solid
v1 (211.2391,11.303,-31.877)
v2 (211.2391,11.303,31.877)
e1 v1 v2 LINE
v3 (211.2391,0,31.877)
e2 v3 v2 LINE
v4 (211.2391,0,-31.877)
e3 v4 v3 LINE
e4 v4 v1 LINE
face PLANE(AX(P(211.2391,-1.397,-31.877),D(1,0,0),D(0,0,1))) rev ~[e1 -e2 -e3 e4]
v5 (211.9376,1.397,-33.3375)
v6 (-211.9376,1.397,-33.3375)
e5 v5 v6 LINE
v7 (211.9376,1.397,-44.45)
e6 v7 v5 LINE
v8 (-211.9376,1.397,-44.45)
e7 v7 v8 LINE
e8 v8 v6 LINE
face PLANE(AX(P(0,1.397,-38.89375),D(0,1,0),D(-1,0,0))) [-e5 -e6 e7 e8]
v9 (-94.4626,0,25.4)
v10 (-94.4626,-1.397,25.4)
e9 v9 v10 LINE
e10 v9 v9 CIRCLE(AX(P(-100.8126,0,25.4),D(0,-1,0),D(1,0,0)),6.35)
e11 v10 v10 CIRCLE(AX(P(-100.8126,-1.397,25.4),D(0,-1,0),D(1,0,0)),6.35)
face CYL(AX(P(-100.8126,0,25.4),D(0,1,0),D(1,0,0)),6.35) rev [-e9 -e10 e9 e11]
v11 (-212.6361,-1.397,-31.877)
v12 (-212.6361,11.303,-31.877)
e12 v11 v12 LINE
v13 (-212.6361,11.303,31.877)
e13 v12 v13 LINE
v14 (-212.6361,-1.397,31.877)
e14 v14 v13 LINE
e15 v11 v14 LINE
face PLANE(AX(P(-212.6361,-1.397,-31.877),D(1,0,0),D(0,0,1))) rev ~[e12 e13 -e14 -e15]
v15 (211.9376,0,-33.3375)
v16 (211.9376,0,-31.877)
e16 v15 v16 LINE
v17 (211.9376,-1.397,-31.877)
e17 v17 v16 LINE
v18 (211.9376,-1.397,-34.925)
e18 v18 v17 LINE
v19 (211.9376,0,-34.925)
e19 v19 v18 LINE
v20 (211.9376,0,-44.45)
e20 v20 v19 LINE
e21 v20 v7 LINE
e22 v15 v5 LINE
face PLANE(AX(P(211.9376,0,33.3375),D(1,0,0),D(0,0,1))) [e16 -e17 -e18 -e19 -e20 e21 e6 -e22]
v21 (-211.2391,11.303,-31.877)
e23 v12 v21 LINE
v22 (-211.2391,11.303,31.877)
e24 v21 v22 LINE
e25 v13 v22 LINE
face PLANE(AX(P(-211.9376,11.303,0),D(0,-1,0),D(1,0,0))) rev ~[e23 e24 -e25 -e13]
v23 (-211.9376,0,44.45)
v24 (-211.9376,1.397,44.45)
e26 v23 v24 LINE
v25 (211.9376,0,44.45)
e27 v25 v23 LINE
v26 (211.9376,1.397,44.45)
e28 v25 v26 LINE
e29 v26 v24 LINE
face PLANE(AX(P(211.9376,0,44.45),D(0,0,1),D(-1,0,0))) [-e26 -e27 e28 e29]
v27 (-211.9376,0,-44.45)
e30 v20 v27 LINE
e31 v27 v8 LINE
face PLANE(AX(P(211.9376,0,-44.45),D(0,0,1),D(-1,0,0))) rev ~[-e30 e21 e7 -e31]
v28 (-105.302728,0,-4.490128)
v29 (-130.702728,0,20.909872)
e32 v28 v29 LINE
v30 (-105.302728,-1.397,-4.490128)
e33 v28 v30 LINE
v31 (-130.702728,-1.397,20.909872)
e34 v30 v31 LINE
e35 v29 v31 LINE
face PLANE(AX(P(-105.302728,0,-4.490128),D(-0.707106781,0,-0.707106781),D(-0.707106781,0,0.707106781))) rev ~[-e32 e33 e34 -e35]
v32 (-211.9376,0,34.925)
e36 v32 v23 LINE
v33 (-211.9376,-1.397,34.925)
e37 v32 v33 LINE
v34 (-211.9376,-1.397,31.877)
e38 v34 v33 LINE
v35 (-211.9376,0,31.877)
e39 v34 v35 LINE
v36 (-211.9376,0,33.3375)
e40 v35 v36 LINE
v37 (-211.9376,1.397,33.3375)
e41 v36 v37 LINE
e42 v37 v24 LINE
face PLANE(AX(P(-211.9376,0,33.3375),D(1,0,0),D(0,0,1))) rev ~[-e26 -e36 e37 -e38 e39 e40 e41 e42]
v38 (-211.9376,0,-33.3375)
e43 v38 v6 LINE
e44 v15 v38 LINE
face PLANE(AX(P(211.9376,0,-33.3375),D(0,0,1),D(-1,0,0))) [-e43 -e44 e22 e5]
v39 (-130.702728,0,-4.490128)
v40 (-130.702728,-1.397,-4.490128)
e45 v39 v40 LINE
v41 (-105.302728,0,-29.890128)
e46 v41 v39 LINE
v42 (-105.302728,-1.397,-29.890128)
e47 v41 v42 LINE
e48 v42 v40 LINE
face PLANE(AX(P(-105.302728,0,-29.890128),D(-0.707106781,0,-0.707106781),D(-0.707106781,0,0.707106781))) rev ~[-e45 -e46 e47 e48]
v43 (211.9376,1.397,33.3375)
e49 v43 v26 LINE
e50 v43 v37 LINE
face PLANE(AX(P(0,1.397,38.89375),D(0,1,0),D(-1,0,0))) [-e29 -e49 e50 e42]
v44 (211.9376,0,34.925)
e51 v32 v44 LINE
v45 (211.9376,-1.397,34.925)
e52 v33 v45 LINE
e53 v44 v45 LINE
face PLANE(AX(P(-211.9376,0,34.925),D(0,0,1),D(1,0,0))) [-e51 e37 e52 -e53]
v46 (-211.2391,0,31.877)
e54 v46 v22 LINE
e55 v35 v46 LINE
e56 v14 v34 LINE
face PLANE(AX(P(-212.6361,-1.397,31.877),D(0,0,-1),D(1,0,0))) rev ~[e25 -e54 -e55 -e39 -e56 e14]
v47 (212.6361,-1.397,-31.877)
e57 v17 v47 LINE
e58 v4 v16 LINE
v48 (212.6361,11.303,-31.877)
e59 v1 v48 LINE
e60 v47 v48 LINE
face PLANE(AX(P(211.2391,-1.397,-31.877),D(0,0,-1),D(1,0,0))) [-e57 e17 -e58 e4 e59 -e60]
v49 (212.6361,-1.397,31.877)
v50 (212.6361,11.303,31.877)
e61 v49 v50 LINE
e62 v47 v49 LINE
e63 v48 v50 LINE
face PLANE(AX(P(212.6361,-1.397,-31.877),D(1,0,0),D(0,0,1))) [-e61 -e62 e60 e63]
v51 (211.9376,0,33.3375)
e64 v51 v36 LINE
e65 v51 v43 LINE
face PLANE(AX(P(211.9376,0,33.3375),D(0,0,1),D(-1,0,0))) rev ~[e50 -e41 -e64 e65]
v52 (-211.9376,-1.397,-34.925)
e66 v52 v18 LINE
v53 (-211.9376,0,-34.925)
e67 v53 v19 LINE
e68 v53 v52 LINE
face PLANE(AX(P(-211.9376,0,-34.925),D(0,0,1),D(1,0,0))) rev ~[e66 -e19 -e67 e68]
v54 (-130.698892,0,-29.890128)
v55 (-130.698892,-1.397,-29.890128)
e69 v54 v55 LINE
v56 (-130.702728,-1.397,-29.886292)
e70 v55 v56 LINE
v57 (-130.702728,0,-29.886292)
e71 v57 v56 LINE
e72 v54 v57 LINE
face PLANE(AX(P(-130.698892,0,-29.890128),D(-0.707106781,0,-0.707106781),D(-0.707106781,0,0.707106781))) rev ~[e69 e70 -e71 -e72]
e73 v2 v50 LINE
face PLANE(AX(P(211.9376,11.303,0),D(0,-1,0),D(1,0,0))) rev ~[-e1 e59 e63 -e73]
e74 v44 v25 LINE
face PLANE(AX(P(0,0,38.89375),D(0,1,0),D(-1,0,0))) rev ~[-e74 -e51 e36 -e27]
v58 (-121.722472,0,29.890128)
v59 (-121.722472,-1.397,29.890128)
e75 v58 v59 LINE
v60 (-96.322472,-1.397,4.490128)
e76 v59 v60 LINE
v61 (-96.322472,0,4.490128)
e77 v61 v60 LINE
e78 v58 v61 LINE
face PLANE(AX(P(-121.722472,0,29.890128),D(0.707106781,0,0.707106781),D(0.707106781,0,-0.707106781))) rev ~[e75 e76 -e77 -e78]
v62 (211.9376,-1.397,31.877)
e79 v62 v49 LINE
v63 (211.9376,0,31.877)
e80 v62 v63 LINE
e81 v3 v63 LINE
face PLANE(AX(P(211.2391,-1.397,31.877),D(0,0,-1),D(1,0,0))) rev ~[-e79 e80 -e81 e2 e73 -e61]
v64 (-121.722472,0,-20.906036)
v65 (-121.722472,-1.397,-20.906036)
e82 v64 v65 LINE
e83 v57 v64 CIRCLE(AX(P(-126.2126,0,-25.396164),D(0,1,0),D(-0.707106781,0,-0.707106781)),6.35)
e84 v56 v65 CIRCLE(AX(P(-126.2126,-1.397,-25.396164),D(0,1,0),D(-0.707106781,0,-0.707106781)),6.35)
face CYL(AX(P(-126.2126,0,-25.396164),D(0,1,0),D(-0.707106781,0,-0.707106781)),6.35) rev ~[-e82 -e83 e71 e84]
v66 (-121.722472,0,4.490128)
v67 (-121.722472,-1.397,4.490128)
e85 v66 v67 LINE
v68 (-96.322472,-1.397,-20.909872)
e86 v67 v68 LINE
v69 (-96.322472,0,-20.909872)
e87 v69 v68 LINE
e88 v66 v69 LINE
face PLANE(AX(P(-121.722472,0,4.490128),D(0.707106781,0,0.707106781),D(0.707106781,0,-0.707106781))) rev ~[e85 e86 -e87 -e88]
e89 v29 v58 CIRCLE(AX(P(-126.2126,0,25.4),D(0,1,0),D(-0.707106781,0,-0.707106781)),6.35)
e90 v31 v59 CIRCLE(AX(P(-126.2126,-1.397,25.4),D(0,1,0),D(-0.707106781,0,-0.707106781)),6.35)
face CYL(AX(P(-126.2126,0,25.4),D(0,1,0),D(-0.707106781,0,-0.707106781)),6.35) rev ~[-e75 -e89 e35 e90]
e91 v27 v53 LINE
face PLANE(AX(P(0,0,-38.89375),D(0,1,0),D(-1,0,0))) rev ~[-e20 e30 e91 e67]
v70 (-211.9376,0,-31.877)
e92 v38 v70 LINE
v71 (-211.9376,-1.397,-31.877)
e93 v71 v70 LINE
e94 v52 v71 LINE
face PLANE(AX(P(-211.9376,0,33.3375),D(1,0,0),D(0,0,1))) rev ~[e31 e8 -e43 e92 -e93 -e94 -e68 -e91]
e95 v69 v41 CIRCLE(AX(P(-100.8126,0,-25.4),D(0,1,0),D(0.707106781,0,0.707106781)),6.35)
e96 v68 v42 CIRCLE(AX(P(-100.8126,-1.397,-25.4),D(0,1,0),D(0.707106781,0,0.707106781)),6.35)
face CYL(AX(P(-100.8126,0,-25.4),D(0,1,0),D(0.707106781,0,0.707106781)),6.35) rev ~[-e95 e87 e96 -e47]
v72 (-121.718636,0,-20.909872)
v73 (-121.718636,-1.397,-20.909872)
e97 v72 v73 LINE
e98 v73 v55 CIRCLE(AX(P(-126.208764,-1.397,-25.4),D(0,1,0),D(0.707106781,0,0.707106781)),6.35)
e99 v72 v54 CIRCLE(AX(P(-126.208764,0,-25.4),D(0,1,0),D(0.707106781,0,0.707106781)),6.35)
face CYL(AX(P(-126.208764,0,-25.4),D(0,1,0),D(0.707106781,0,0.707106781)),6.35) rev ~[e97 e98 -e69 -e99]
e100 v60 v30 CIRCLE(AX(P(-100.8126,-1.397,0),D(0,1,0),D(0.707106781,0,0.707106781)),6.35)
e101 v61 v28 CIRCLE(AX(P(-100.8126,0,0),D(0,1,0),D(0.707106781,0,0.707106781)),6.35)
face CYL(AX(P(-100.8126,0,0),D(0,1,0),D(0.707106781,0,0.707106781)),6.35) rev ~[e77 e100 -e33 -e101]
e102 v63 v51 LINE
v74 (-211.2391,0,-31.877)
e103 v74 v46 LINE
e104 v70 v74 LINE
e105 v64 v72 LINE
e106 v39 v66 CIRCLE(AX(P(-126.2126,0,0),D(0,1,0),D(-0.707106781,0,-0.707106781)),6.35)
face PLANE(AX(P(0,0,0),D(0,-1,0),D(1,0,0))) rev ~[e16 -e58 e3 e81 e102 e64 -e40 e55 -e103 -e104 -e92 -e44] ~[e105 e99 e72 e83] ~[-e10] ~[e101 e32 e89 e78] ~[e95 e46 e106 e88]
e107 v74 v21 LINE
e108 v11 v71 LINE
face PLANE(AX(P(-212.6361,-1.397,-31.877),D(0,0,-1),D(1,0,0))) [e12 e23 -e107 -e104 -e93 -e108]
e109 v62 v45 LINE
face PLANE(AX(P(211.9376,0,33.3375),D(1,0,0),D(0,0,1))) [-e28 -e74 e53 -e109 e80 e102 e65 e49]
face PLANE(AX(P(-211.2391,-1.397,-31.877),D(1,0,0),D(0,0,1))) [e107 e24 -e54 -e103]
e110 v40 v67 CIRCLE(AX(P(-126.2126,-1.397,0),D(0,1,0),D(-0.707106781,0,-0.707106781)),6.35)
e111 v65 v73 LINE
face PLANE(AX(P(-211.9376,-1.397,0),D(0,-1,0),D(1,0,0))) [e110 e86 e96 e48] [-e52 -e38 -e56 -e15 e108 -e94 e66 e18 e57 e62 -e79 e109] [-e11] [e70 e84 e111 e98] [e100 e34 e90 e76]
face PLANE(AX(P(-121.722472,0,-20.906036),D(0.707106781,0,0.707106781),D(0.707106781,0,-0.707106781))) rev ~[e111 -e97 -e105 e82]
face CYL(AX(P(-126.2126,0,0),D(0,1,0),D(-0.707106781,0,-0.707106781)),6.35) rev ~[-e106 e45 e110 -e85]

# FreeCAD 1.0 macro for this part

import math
import FreeCAD as App
import Part
import Sketcher
from FreeCAD import Vector
Q = App.Units.Quantity

doc = App.newDocument("Part")
body = doc.addObject("PartDesign::Body", "Body")

sketch1 = body.newObject("Sketcher::SketchObject", "Sketch")
sketch1.AttachmentSupport = (doc.getObject("XZ_Plane"), [""])
sketch1.MapMode = "FlatFace"
sketch1.addGeometry(Part.LineSegment(Vector(-211.938, 34.925, 0), Vector(-211.938, -34.925, 0)), False)
sketch1.addGeometry(Part.LineSegment(Vector(-211.938, -34.925, 0), Vector(211.938, -34.925, 0)), False)
sketch1.addGeometry(Part.LineSegment(Vector(211.938, -34.925, 0), Vector(211.938, 34.925, 0)), False)
sketch1.addGeometry(Part.LineSegment(Vector(211.938, 34.925, 0), Vector(-211.938, 34.925, 0)), False)
sketch1.addGeometry(Part.LineSegment(Vector(-130.699, -29.89, 0), Vector(-130.703, -29.886, 0)), False)
sketch1.addGeometry(Part.ArcOfCircle(Part.Circle(Vector(-126.213, -25.396, 0), Vector(0, 0, 1), 6.35), math.radians(45), math.radians(225)), False)
sketch1.addGeometry(Part.LineSegment(Vector(-121.722, -20.906, 0), Vector(-121.719, -20.91, 0)), False)
sketch1.addGeometry(Part.ArcOfCircle(Part.Circle(Vector(-126.209, -25.4, 0), Vector(0, 0, 1), 6.35), math.radians(-135), math.radians(45)), False)
sketch1.addGeometry(Part.LineSegment(Vector(-105.303, -29.89, 0), Vector(-130.703, -4.49, 0)), False)
sketch1.addGeometry(Part.ArcOfCircle(Part.Circle(Vector(-126.213, 0, 0), Vector(0, 0, 1), 6.35), math.radians(45), math.radians(225)), False)
sketch1.addGeometry(Part.LineSegment(Vector(-121.722, 4.49, 0), Vector(-96.322, -20.91, 0)), False)
sketch1.addGeometry(Part.ArcOfCircle(Part.Circle(Vector(-100.813, -25.4, 0), Vector(0, 0, 1), 6.35), math.radians(-135), math.radians(45)), False)
sketch1.addGeometry(Part.LineSegment(Vector(-121.722, 29.89, 0), Vector(-96.322, 4.49, 0)), False)
sketch1.addGeometry(Part.ArcOfCircle(Part.Circle(Vector(-100.813, 0, 0), Vector(0, 0, 1), 6.35), math.radians(-135), math.radians(45)), False)
sketch1.addGeometry(Part.LineSegment(Vector(-105.303, -4.49, 0), Vector(-130.703, 20.91, 0)), False)
sketch1.addGeometry(Part.ArcOfCircle(Part.Circle(Vector(-126.213, 25.4, 0), Vector(0, 0, 1), 6.35), math.radians(45), math.radians(225)), False)
sketch1.addGeometry(Part.Circle(Vector(-100.813, 25.4, 0), Vector(0, 0, 1), 6.35), False)
sketch1.addConstraint(Sketcher.Constraint("Coincident", 0, 2, 1, 1))
sketch1.addConstraint(Sketcher.Constraint("Coincident", 1, 2, 2, 1))
sketch1.addConstraint(Sketcher.Constraint("Coincident", 2, 2, 3, 1))
sketch1.addConstraint(Sketcher.Constraint("Coincident", 3, 2, 0, 1))
sketch1.addConstraint(Sketcher.Constraint("Tangent", 4, 2, 5, 2))
sketch1.addConstraint(Sketcher.Constraint("Tangent", 5, 1, 6, 1))
sketch1.addConstraint(Sketcher.Constraint("Coincident", 6, 2, 7, 2))
sketch1.addConstraint(Sketcher.Constraint("Coincident", 7, 1, 4, 1))
sketch1.addConstraint(Sketcher.Constraint("Tangent", 8, 2, 9, 2))
sketch1.addConstraint(Sketcher.Constraint("Tangent", 9, 1, 10, 1))
sketch1.addConstraint(Sketcher.Constraint("Tangent", 10, 2, 11, 2))
sketch1.addConstraint(Sketcher.Constraint("Tangent", 11, 1, 8, 1))
sketch1.addConstraint(Sketcher.Constraint("Tangent", 12, 2, 13, 2))
sketch1.addConstraint(Sketcher.Constraint("Tangent", 13, 1, 14, 1))
sketch1.addConstraint(Sketcher.Constraint("Tangent", 14, 2, 15, 2))
sketch1.addConstraint(Sketcher.Constraint("Tangent", 15, 1, 12, 1))
sketch1.addConstraint(Sketcher.Constraint("Vertical", 0))
sketch1.addConstraint(Sketcher.Constraint("Horizontal", 1))
sketch1.addConstraint(Sketcher.Constraint("Vertical", 2))
sketch1.addConstraint(Sketcher.Constraint("Horizontal", 3))
sketch1.addConstraint(Sketcher.Constraint("Equal", 7, 9))
sketch1.addConstraint(Sketcher.Constraint("Equal", 9, 11))
sketch1.addConstraint(Sketcher.Constraint("Equal", 11, 13))
sketch1.addConstraint(Sketcher.Constraint("Equal", 13, 15))
sketch1.addConstraint(Sketcher.Constraint("Equal", 15, 16))
sketch1.addConstraint(Sketcher.Constraint("Symmetric", 0, 2, 2, 2, -1, 1))
sketch1.addConstraint(Sketcher.Constraint("Symmetric", 11, 3, 16, 3, -1))
sketch1.addConstraint(Sketcher.Constraint("PointOnObject", 9, 3, -1))
sketch1.addConstraint(Sketcher.Constraint("PointOnObject", 13, 3, -1))
sketch1.addConstraint(Sketcher.Constraint("Parallel", 10, 12))
sketch1.addConstraint(Sketcher.Constraint("Horizontal", 7, 3, 11, 3))
sketch1.addConstraint(Sketcher.Constraint("Horizontal", 15, 3, 16, 3))
sketch1.addConstraint(Sketcher.Constraint("Horizontal", 6, 2, 10, 2))
sketch1.addConstraint(Sketcher.Constraint("Horizontal", 7, 1, 11, 1))
sketch1.addConstraint(Sketcher.Constraint("Vertical", 5, 3, 9, 3))
sketch1.addConstraint(Sketcher.Constraint("Vertical", 11, 3, 13, 3))
sketch1.addConstraint(Sketcher.Constraint("Vertical", 4, 2, 8, 2))
sketch1.addConstraint(Sketcher.Constraint("Vertical", 5, 1, 9, 1))
sketch1.addConstraint(Sketcher.Constraint("Diameter", 16, Q("0.5 in")))
sketch1.addConstraint(Sketcher.Constraint("DistanceY", 7, 3, -1, 1, Q("1 in")))
sketch1.addConstraint(Sketcher.Constraint("Angle", 8, Q("135 deg")))
sketch1.addConstraint(Sketcher.Constraint("DistanceY", 0, 2, 0, 1, Q("2.75 in")))
sketch1.addConstraint(Sketcher.Constraint("DistanceX", 1, 1, 1, 2, Q("16.688 in")))
sketch1.addConstraint(Sketcher.Constraint("DistanceX", 5, 3, -1, 1, Q("4.969 in")))
sketch1.addConstraint(Sketcher.Constraint("DistanceX", 7, 1, -1, 1, Q("130.698892 mm")))
pad1 = body.newObject("PartDesign::Pad", "Pad")
pad1.Profile = sketch1
pad1.Length = Q("0.055 in")

sketch2 = body.newObject("Sketcher::SketchObject", "Sketch001")
sketch2.AttachmentSupport = (doc.getObject("XZ_Plane"), [""])
sketch2.MapMode = "FlatFace"
sketch2.addGeometry(Part.LineSegment(Vector(212, 44, 0), Vector(212, 33, 0)), False)
sketch2.addGeometry(Part.LineSegment(Vector(212, 33, 0), Vector(-212, 33, 0)), False)
sketch2.addGeometry(Part.LineSegment(Vector(-212, 33, 0), Vector(-212, 44, 0)), False)
sketch2.addGeometry(Part.LineSegment(Vector(-212, 44, 0), Vector(212, 44, 0)), False)
sketch2.addGeometry(Part.LineSegment(Vector(212, -33, 0), Vector(212, -44, 0)), False)
sketch2.addGeometry(Part.LineSegment(Vector(212, -44, 0), Vector(-212, -44, 0)), False)
sketch2.addGeometry(Part.LineSegment(Vector(-212, -44, 0), Vector(-212, -33, 0)), False)
sketch2.addGeometry(Part.LineSegment(Vector(-212, -33, 0), Vector(212, -33, 0)), False)
sketch2.addConstraint(Sketcher.Constraint("Coincident", 0, 2, 1, 1))
sketch2.addConstraint(Sketcher.Constraint("Coincident", 1, 2, 2, 1))
sketch2.addConstraint(Sketcher.Constraint("Coincident", 2, 2, 3, 1))
sketch2.addConstraint(Sketcher.Constraint("Coincident", 3, 2, 0, 1))
sketch2.addConstraint(Sketcher.Constraint("Coincident", 4, 2, 5, 1))
sketch2.addConstraint(Sketcher.Constraint("Coincident", 5, 2, 6, 1))
sketch2.addConstraint(Sketcher.Constraint("Coincident", 6, 2, 7, 1))
sketch2.addConstraint(Sketcher.Constraint("Coincident", 7, 2, 4, 1))
sketch2.addConstraint(Sketcher.Constraint("Vertical", 0))
sketch2.addConstraint(Sketcher.Constraint("Horizontal", 1))
sketch2.addConstraint(Sketcher.Constraint("Vertical", 2))
sketch2.addConstraint(Sketcher.Constraint("Horizontal", 3))
sketch2.addConstraint(Sketcher.Constraint("Vertical", 4))
sketch2.addConstraint(Sketcher.Constraint("Horizontal", 5))
sketch2.addConstraint(Sketcher.Constraint("Vertical", 6))
sketch2.addConstraint(Sketcher.Constraint("Horizontal", 7))
sketch2.addConstraint(Sketcher.Constraint("Symmetric", 2, 2, 4, 2, -1, 1))
sketch2.addConstraint(Sketcher.Constraint("Symmetric", 0, 2, 6, 2, -1, 1))
sketch2.addConstraint(Sketcher.Constraint("Vertical", 3, 2, 4, 2))
sketch2.addConstraint(Sketcher.Constraint("DistanceY", 4, 2, 3, 2, Q("3.5 in")))
sketch2.addConstraint(Sketcher.Constraint("DistanceX", 1, 2, 1, 1, Q("16.688 in")))
sketch2.addConstraint(Sketcher.Constraint("DistanceY", 0, 2, 0, 1, Q("0.4375 in")))
pad2 = body.newObject("PartDesign::Pad", "Pad001")
pad2.Profile = sketch2
pad2.Length = Q("0.055 in")
pad2.Reversed = True

sketch3 = body.newObject("Sketcher::SketchObject", "Sketch002")
sketch3.AttachmentSupport = (doc.getObject("XZ_Plane"), [""])
sketch3.MapMode = "FlatFace"
sketch3.AttachmentOffset = App.Placement(Vector(0, 0, 0.055 * 25.4), App.Rotation())
sketch3.addGeometry(Part.LineSegment(Vector(-212.6, 31.9, 0), Vector(-212.6, -31.9, 0)), False)
sketch3.addGeometry(Part.LineSegment(Vector(-212.6, -31.9, 0), Vector(-211.2, -31.9, 0)), False)
sketch3.addGeometry(Part.LineSegment(Vector(-211.2, -31.9, 0), Vector(-211.2, 31.9, 0)), False)
sketch3.addGeometry(Part.LineSegment(Vector(-211.2, 31.9, 0), Vector(-212.6, 31.9, 0)), False)
sketch3.addGeometry(Part.LineSegment(Vector(211.2, 31.9, 0), Vector(211.2, -31.9, 0)), False)
sketch3.addGeometry(Part.LineSegment(Vector(211.2, -31.9, 0), Vector(212.6, -31.9, 0)), False)
sketch3.addGeometry(Part.LineSegment(Vector(212.6, -31.9, 0), Vector(212.6, 31.9, 0)), False)
sketch3.addGeometry(Part.LineSegment(Vector(212.6, 31.9, 0), Vector(211.2, 31.9, 0)), False)
sketch3.addConstraint(Sketcher.Constraint("Coincident", 0, 2, 1, 1))
sketch3.addConstraint(Sketcher.Constraint("Coincident", 1, 2, 2, 1))
sketch3.addConstraint(Sketcher.Constraint("Coincident", 2, 2, 3, 1))
sketch3.addConstraint(Sketcher.Constraint("Coincident", 3, 2, 0, 1))
sketch3.addConstraint(Sketcher.Constraint("Coincident", 4, 2, 5, 1))
sketch3.addConstraint(Sketcher.Constraint("Coincident", 5, 2, 6, 1))
sketch3.addConstraint(Sketcher.Constraint("Coincident", 6, 2, 7, 1))
sketch3.addConstraint(Sketcher.Constraint("Coincident", 7, 2, 4, 1))
sketch3.addConstraint(Sketcher.Constraint("Vertical", 0))
sketch3.addConstraint(Sketcher.Constraint("Horizontal", 1))
sketch3.addConstraint(Sketcher.Constraint("Vertical", 2))
sketch3.addConstraint(Sketcher.Constraint("Horizontal", 3))
sketch3.addConstraint(Sketcher.Constraint("Vertical", 4))
sketch3.addConstraint(Sketcher.Constraint("Horizontal", 5))
sketch3.addConstraint(Sketcher.Constraint("Vertical", 6))
sketch3.addConstraint(Sketcher.Constraint("Horizontal", 7))
sketch3.addConstraint(Sketcher.Constraint("Symmetric", 2, 2, 4, 2, -1, 1))
sketch3.addConstraint(Sketcher.Constraint("Symmetric", 0, 2, 6, 2, -1, 1))
sketch3.addConstraint(Sketcher.Constraint("Horizontal", 1, 2, 4, 2))
sketch3.addConstraint(Sketcher.Constraint("DistanceY", 0, 2, 0, 1, Q("2.51 in")))
sketch3.addConstraint(Sketcher.Constraint("DistanceX", 1, 1, 1, 2, Q("0.055 in")))
sketch3.addConstraint(Sketcher.Constraint("DistanceX", 1, 2, 4, 2, Q("16.633 in")))
pad3 = body.newObject("PartDesign::Pad", "Pad002")
pad3.Profile = sketch3
pad3.Length = Q("0.5 in")
pad3.Reversed = True

doc.recompute()
